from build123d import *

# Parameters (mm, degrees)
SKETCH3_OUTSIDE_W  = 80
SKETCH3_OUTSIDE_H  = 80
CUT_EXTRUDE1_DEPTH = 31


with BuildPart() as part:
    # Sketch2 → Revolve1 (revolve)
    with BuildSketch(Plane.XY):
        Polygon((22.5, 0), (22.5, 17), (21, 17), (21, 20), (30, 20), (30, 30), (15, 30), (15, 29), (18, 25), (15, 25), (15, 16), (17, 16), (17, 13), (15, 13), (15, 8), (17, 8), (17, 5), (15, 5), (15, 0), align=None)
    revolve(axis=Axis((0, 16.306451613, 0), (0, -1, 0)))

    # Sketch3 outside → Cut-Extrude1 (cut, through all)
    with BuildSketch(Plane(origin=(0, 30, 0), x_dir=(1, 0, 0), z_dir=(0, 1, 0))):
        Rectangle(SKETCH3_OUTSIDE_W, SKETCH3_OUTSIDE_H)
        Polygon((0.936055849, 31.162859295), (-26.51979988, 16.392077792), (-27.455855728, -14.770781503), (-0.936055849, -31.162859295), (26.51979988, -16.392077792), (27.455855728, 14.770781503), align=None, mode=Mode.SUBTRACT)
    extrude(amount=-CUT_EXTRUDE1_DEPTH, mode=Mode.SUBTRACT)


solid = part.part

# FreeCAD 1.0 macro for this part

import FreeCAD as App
import Part
import Sketcher

V = App.Vector
Q = App.Units.Quantity


def add_polygon(sketch, points):
    """Adds a closed chain of lines whose ends are joined by coincident constraints."""
    first, n = sketch.GeometryCount, len(points)
    for a, b in zip(points, points[1:] + points[:1]):
        sketch.addGeometry(Part.LineSegment(App.Vector(*a, 0), App.Vector(*b, 0)), False)
    for i in range(n):
        sketch.addConstraint(Sketcher.Constraint("Coincident", first + i, 2, first + (i + 1) % n, 1))

doc = App.newDocument("Part")
body = doc.addObject("PartDesign::Body", "Body")

sketch1 = body.newObject("Sketcher::SketchObject", "Sketch")
sketch1.AttachmentSupport = (doc.getObject("XY_Plane"), [""])
sketch1.MapMode = "FlatFace"
add_polygon(sketch1, [(22.5, 0), (22.5, 17), (21, 17), (21, 20), (30, 20), (30, 30), (15, 30), (15, 29), (18, 25), (15, 25), (15, 16), (17, 16), (17, 13), (15, 13), (15, 8), (17, 8), (17, 5), (15, 5), (15, 0)])
sketch1.addConstraint(Sketcher.Constraint("Vertical", 0))
sketch1.addConstraint(Sketcher.Constraint("Horizontal", 1))
sketch1.addConstraint(Sketcher.Constraint("Vertical", 2))
sketch1.addConstraint(Sketcher.Constraint("Horizontal", 3))
sketch1.addConstraint(Sketcher.Constraint("Vertical", 4))
sketch1.addConstraint(Sketcher.Constraint("Horizontal", 5))
sketch1.addConstraint(Sketcher.Constraint("Vertical", 6))
sketch1.addConstraint(Sketcher.Constraint("Horizontal", 8))
sketch1.addConstraint(Sketcher.Constraint("Vertical", 9))
sketch1.addConstraint(Sketcher.Constraint("Horizontal", 10))
sketch1.addConstraint(Sketcher.Constraint("Vertical", 11))
sketch1.addConstraint(Sketcher.Constraint("Horizontal", 12))
sketch1.addConstraint(Sketcher.Constraint("Vertical", 13))
sketch1.addConstraint(Sketcher.Constraint("Horizontal", 14))
sketch1.addConstraint(Sketcher.Constraint("Vertical", 15))
sketch1.addConstraint(Sketcher.Constraint("Horizontal", 16))
sketch1.addConstraint(Sketcher.Constraint("Vertical", 17))
sketch1.addConstraint(Sketcher.Constraint("Horizontal", 18))
sketch1.addConstraint(Sketcher.Constraint("PointOnObject", 17, 2, -1))
sketch1.addConstraint(Sketcher.Constraint("Vertical", 6, 2, 8, 2))
sketch1.addConstraint(Sketcher.Constraint("Vertical", 9, 2, 12, 2))
sketch1.addConstraint(Sketcher.Constraint("Vertical", 11, 2, 14, 2))
sketch1.addConstraint(Sketcher.Constraint("Vertical", 13, 2, 16, 2))
sketch1.addConstraint(Sketcher.Constraint("Equal", 8, 2))
sketch1.addConstraint(Sketcher.Constraint("Equal", 3, 9))
sketch1.addConstraint(Sketcher.Constraint("Equal", 2, 11))
sketch1.addConstraint(Sketcher.Constraint("Equal", 11, 15))
sketch1.addConstraint(Sketcher.Constraint("Equal", 13, 17))
sketch1.addConstraint(Sketcher.Constraint("DistanceX", 3, 1, 3, 2, Q("9 mm")))
sketch1.addConstraint(Sketcher.Constraint("DistanceX", 5, 2, 5, 1, Q("15 mm")))
sketch1.addConstraint(Sketcher.Constraint("DistanceX", 8, 2, 8, 1, Q("3 mm")))
sketch1.addConstraint(Sketcher.Constraint("DistanceX", 10, 1, 10, 2, Q("2 mm")))
sketch1.addConstraint(Sketcher.Constraint("DistanceY", 0, 1, 0, 2, Q("17 mm")))
sketch1.addConstraint(Sketcher.Constraint("DistanceY", 4, 1, 4, 2, Q("10 mm")))
sketch1.addConstraint(Sketcher.Constraint("DistanceY", 6, 2, 6, 1, Q("1 mm")))
sketch1.addConstraint(Sketcher.Constraint("DistanceY", 13, 2, 13, 1, Q("5 mm")))
sketch1.addConstraint(Sketcher.Constraint("DistanceX", 1, 2, 1, 1, Q("1.5 mm")))
sketch1.addConstraint(Sketcher.Constraint("DistanceX", -1, 1, 1, 2, Q("21 mm")))
revolution = body.newObject("PartDesign::Revolution", "Revolution")
revolution.Profile = sketch1
revolution.ReferenceAxis = (sketch1, ["V_Axis"])
revolution.Angle = 360

sketch2 = body.newObject("Sketcher::SketchObject", "Sketch001")
sketch2.AttachmentSupport = (doc.getObject("XZ_Plane"), [""])
sketch2.MapMode = "FlatFace"
sketch2.AttachmentOffset = App.Placement(V(0, 0, -30), App.Rotation())
add_polygon(sketch2, [(-40, -40), (-40, 40), (40, 40), (40, -40)])
add_polygon(sketch2, [(-27, -16), (1, -31), (27, -15), (27, 16), (-1, 31), (-27, 15)])
sketch2.addConstraint(Sketcher.Constraint("Vertical", 0))
sketch2.addConstraint(Sketcher.Constraint("Horizontal", 1))
sketch2.addConstraint(Sketcher.Constraint("Vertical", 2))
sketch2.addConstraint(Sketcher.Constraint("Horizontal", 3))
sketch2.addConstraint(Sketcher.Constraint("Symmetric", 0, 2, 2, 2, -1, 1))
sketch2.addConstraint(Sketcher.Constraint("Symmetric", 4, 2, 7, 2, -1, 1))
sketch2.addConstraint(Sketcher.Constraint("Symmetric", 5, 2, 8, 2, -1, 1))
sketch2.addConstraint(Sketcher.Constraint("Symmetric", 6, 2, 9, 2, -1, 1))
sketch2.addConstraint(Sketcher.Constraint("Equal", 3, 0))
sketch2.addConstraint(Sketcher.Constraint("Equal", 4, 5))
sketch2.addConstraint(Sketcher.Constraint("Equal", 5, 6))
sketch2.addConstraint(Sketcher.Constraint("DistanceX", 1, 1, 1, 2, Q("80 mm")))
sketch2.addConstraint(Sketcher.Constraint("DistanceX", -1, 1, 6, 2, Q("26.5198 mm")))
sketch2.addConstraint(Sketcher.Constraint("DistanceX", 4, 2, 5, 2, Q("26.5198 mm")))
sketch2.addConstraint(Sketcher.Constraint("DistanceY", 4, 2, -1, 1, Q("31.162859 mm")))
sketch2.addConstraint(Sketcher.Constraint("DistanceY", 5, 2, -1, 1, Q("14.770782 mm")))
pocket1 = body.newObject("PartDesign::Pocket", "Pocket")
pocket1.Profile = sketch2
pocket1.Type = "ThroughAll"
pocket1.Reversed = True

doc.recompute()
